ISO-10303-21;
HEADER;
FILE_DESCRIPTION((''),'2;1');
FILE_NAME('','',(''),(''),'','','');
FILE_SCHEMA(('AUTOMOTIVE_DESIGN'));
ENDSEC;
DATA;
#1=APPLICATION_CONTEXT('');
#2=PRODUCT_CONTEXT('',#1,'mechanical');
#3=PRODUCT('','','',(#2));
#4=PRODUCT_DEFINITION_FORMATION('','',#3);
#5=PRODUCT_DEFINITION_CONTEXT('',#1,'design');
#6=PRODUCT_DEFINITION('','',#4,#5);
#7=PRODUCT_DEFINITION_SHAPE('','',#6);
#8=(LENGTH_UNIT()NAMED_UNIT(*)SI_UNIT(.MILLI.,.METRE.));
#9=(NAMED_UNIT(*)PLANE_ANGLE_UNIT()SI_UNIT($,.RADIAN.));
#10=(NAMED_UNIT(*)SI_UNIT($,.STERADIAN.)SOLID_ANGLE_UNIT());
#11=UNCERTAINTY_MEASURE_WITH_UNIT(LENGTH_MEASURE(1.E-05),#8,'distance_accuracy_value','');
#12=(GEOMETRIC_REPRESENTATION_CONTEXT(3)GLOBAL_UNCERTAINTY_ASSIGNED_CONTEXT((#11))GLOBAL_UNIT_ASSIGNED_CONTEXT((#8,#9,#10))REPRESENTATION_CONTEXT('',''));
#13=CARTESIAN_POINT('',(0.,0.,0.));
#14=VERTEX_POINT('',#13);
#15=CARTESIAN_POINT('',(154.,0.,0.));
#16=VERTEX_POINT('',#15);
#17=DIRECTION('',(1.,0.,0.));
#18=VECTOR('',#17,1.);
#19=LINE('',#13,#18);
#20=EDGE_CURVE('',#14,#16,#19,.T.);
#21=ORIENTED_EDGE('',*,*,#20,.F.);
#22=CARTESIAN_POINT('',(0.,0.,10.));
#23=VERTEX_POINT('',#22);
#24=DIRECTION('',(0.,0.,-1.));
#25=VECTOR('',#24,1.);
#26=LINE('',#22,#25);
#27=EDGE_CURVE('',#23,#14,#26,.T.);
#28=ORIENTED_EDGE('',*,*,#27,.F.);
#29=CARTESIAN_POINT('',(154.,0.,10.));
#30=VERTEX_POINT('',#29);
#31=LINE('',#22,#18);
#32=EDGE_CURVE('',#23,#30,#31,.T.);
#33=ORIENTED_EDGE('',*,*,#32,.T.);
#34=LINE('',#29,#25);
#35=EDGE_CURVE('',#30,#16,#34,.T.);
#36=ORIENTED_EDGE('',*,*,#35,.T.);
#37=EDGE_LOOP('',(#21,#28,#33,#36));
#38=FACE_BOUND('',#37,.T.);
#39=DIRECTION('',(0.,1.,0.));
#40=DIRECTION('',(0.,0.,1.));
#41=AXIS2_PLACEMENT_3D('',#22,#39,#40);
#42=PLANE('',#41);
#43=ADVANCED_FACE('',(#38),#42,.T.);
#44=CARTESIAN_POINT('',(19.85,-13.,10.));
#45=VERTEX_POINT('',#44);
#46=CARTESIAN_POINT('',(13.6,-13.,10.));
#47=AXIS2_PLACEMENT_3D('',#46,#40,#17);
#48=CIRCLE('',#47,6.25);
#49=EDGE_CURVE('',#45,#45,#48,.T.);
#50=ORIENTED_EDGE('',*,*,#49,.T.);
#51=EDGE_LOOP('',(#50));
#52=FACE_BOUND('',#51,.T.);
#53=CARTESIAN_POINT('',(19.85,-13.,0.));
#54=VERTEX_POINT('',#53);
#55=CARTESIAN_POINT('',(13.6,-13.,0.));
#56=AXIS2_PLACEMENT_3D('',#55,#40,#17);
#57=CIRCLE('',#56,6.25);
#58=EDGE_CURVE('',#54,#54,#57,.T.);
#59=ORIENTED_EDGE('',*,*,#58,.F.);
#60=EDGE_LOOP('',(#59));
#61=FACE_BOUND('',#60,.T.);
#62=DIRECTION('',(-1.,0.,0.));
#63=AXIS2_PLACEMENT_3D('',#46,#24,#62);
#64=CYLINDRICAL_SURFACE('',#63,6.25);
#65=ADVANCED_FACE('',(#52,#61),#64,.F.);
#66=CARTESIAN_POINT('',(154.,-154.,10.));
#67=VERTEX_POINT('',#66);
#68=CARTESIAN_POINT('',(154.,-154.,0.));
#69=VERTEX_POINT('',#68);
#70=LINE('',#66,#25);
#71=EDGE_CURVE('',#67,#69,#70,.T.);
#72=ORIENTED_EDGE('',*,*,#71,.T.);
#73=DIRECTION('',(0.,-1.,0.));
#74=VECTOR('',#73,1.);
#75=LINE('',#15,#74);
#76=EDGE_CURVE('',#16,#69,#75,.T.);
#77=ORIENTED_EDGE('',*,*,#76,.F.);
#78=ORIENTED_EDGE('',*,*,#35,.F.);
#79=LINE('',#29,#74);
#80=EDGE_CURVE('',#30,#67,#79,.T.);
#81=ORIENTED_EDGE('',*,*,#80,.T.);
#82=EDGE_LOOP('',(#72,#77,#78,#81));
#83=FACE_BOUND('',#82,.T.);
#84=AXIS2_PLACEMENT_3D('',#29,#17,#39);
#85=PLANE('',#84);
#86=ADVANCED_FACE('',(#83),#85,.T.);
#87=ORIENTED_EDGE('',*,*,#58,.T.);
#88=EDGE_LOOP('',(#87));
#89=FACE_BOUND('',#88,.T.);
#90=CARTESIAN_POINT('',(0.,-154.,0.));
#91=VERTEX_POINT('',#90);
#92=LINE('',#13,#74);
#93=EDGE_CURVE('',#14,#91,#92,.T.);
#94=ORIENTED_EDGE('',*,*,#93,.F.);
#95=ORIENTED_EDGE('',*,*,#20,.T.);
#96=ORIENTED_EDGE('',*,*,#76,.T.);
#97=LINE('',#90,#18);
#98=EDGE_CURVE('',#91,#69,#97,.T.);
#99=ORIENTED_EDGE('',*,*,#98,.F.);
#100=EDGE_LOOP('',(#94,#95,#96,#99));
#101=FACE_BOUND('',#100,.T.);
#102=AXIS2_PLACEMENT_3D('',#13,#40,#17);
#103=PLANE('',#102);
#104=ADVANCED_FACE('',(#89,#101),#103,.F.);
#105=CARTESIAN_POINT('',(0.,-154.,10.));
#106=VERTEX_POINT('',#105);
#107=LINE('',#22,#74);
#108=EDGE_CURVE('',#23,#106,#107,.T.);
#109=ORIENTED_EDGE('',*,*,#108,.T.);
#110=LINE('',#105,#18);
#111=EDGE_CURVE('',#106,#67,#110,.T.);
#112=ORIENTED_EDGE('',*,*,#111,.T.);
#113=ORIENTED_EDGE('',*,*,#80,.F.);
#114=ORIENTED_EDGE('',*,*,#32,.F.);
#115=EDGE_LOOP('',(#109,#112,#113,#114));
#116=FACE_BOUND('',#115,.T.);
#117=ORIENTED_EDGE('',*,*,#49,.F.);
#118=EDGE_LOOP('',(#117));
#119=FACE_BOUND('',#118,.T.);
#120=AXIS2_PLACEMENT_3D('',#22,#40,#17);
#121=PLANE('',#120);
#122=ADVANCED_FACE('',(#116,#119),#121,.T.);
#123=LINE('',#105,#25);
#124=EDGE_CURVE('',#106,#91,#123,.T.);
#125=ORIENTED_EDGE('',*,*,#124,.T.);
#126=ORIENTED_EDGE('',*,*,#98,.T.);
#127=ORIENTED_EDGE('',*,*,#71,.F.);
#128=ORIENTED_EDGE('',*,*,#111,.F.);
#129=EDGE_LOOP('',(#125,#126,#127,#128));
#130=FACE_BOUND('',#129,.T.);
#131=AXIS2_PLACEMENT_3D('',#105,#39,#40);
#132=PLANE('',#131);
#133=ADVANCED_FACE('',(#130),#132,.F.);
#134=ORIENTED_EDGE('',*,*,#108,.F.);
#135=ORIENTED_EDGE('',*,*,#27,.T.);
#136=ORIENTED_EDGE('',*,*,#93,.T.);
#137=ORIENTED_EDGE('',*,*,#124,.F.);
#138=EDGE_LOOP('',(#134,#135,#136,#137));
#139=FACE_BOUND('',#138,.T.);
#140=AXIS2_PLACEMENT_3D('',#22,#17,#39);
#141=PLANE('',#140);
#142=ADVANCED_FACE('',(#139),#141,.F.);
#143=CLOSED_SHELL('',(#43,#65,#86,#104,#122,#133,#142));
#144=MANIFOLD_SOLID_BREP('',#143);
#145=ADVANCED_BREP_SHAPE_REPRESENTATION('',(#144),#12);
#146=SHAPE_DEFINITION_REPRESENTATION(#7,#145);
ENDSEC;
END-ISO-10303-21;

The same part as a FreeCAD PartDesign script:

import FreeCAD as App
import Part
import Sketcher
from FreeCAD import Vector
Q = App.Units.Quantity


def add_polygon(sketch, points):
    """Adds a closed chain of lines whose ends are joined by coincident constraints."""
    first, n = sketch.GeometryCount, len(points)
    for a, b in zip(points, points[1:] + points[:1]):
        sketch.addGeometry(Part.LineSegment(App.Vector(*a, 0), App.Vector(*b, 0)), False)
    for i in range(n):
        sketch.addConstraint(Sketcher.Constraint("Coincident", first + i, 2, first + (i + 1) % n, 1))

doc = App.newDocument("Part")
body = doc.addObject("PartDesign::Body", "Body")

# Sketch on XY plane
sketch1 = body.newObject("Sketcher::SketchObject", "Sketch")
sketch1.AttachmentSupport = (doc.getObject("XY_Plane"), [""])
sketch1.MapMode = "FlatFace"
add_polygon(sketch1, [(0, 0), (0, -154), (154, -154), (154, 0)])  # lines 0-3
sketch1.addGeometry(Part.Circle(Vector(14, -13, 0), Vector(0, 0, 1), 6), False)  # 4
sketch1.addConstraint([
    Sketcher.Constraint("Vertical", 0),
    Sketcher.Constraint("Horizontal", 1),
    Sketcher.Constraint("Vertical", 2),
    Sketcher.Constraint("Horizontal", 3),
    Sketcher.Constraint("Coincident", 3, 2, -1, 1),
    Sketcher.Constraint("Equal", 3, 0),
    Sketcher.Constraint("Diameter", 4, Q("12.5 mm")),
    Sketcher.Constraint("DistanceX", 1, 1, 1, 2, Q("154 mm")),
    Sketcher.Constraint("DistanceY", 4, 3, -1, 1, Q("13 mm")),
    Sketcher.Constraint("DistanceX", -1, 1, 4, 3, Q("13.6 mm")),
])
pad1 = body.newObject("PartDesign::Pad", "Pad")
pad1.Profile = sketch1
pad1.Length = 10

doc.recompute()
